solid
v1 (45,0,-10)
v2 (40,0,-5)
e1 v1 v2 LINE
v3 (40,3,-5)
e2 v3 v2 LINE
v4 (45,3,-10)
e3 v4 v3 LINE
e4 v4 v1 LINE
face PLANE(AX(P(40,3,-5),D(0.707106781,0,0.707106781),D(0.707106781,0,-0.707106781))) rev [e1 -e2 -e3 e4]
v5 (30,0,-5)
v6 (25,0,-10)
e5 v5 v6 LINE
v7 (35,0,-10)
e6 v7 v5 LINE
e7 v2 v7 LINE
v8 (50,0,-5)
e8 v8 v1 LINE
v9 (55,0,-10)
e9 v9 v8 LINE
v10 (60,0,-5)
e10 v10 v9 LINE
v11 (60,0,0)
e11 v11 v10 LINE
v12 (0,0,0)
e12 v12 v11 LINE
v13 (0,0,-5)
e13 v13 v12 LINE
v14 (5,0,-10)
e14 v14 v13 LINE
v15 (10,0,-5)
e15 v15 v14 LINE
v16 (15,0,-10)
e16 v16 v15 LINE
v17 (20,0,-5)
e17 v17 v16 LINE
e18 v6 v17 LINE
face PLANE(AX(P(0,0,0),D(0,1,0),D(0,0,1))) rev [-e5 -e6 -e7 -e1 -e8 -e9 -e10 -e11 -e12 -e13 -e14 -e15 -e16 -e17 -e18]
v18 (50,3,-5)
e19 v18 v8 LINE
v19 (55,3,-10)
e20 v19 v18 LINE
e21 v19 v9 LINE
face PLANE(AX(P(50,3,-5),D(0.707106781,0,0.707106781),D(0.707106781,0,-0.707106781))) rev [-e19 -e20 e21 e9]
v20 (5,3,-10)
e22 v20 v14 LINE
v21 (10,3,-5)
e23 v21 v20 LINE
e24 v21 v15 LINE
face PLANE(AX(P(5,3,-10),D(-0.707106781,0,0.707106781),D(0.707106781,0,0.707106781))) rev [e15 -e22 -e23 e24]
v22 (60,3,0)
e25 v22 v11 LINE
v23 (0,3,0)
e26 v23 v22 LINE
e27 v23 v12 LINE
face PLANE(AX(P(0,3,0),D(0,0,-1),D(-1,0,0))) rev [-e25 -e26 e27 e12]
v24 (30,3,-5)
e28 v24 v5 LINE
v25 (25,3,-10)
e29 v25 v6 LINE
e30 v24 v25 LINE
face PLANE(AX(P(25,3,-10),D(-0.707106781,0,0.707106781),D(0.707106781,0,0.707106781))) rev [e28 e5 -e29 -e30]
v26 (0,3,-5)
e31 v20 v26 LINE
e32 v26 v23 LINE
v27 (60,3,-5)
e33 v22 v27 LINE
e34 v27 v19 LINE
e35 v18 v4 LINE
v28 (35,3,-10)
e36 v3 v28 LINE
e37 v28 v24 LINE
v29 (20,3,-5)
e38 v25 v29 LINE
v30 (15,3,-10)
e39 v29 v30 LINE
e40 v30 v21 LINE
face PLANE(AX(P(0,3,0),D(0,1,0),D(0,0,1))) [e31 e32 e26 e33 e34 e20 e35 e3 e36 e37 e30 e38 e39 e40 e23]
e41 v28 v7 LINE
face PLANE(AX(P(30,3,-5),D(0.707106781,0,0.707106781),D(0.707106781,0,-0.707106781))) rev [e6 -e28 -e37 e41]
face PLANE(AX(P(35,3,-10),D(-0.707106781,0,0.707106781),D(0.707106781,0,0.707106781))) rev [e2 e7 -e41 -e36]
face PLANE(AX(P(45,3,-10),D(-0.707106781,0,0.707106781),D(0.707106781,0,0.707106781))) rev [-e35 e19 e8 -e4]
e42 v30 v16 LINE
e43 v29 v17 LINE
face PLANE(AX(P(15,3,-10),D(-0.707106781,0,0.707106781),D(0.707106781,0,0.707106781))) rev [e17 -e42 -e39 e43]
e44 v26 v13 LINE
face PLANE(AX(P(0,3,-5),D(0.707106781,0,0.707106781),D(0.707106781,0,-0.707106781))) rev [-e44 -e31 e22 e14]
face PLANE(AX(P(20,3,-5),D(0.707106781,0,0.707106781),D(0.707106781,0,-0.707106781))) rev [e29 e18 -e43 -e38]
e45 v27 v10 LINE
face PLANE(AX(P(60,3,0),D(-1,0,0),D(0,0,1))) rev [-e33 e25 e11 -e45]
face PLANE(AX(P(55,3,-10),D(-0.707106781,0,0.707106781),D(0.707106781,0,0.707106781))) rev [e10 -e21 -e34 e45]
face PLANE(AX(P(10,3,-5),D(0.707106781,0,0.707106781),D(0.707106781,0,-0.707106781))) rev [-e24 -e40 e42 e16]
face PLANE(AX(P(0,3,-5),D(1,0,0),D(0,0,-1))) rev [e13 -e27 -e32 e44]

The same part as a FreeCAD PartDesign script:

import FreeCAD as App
import Part
import Sketcher
Q = App.Units.Quantity

doc = App.newDocument("Part")
body = doc.addObject("PartDesign::Body", "Body")

sketch1 = body.newObject("Sketcher::SketchObject", "Sketch")
sketch1.AttachmentSupport = (doc.getObject("XZ_Plane"), [""])
sketch1.MapMode = "FlatFace"
sketch1.addGeometry(Part.LineSegment(App.Vector(5, -10, 0), App.Vector(0, -5, 0)), False)
sketch1.addGeometry(Part.LineSegment(App.Vector(0, -5, 0), App.Vector(0, 0, 0)), False)
sketch1.addGeometry(Part.LineSegment(App.Vector(0, 0, 0), App.Vector(60, 0, 0)), False)
sketch1.addGeometry(Part.LineSegment(App.Vector(60, 0, 0), App.Vector(60, -5, 0)), False)
sketch1.addGeometry(Part.LineSegment(App.Vector(60, -5, 0), App.Vector(55, -10, 0)), False)
sketch1.addGeometry(Part.LineSegment(App.Vector(55, -10, 0), App.Vector(50, -5, 0)), False)
sketch1.addGeometry(Part.LineSegment(App.Vector(50, -5, 0), App.Vector(45, -10, 0)), False)
sketch1.addGeometry(Part.LineSegment(App.Vector(45, -10, 0), App.Vector(40, -5, 0)), False)
sketch1.addGeometry(Part.LineSegment(App.Vector(40, -5, 0), App.Vector(35, -10, 0)), False)
sketch1.addGeometry(Part.LineSegment(App.Vector(35, -10, 0), App.Vector(30, -5, 0)), False)
sketch1.addGeometry(Part.LineSegment(App.Vector(30, -5, 0), App.Vector(25, -10, 0)), False)
sketch1.addGeometry(Part.LineSegment(App.Vector(25, -10, 0), App.Vector(20, -5, 0)), False)
sketch1.addGeometry(Part.LineSegment(App.Vector(20, -5, 0), App.Vector(15, -10, 0)), False)
sketch1.addGeometry(Part.LineSegment(App.Vector(15, -10, 0), App.Vector(10, -5, 0)), False)
sketch1.addGeometry(Part.LineSegment(App.Vector(10, -5, 0), App.Vector(5, -10, 0)), False)
sketch1.addConstraint(Sketcher.Constraint("Coincident", 0, 2, 1, 1))
sketch1.addConstraint(Sketcher.Constraint("Coincident", 1, 2, 2, 1))
sketch1.addConstraint(Sketcher.Constraint("Coincident", 2, 2, 3, 1))
sketch1.addConstraint(Sketcher.Constraint("Coincident", 3, 2, 4, 1))
sketch1.addConstraint(Sketcher.Constraint("Coincident", 4, 2, 5, 1))
sketch1.addConstraint(Sketcher.Constraint("Coincident", 5, 2, 6, 1))
sketch1.addConstraint(Sketcher.Constraint("Coincident", 6, 2, 7, 1))
sketch1.addConstraint(Sketcher.Constraint("Coincident", 7, 2, 8, 1))
sketch1.addConstraint(Sketcher.Constraint("Coincident", 8, 2, 9, 1))
sketch1.addConstraint(Sketcher.Constraint("Coincident", 9, 2, 10, 1))
sketch1.addConstraint(Sketcher.Constraint("Coincident", 10, 2, 11, 1))
sketch1.addConstraint(Sketcher.Constraint("Coincident", 11, 2, 12, 1))
sketch1.addConstraint(Sketcher.Constraint("Coincident", 12, 2, 13, 1))
sketch1.addConstraint(Sketcher.Constraint("Coincident", 13, 2, 14, 1))
sketch1.addConstraint(Sketcher.Constraint("Coincident", 14, 2, 0, 1))
sketch1.addConstraint(Sketcher.Constraint("Vertical", 1))
sketch1.addConstraint(Sketcher.Constraint("Horizontal", 2))
sketch1.addConstraint(Sketcher.Constraint("Vertical", 3))
sketch1.addConstraint(Sketcher.Constraint("Coincident", 1, 2, -1, 1))
sketch1.addConstraint(Sketcher.Constraint("Perpendicular", 0, 4))
sketch1.addConstraint(Sketcher.Constraint("Perpendicular", 4, 5))
sketch1.addConstraint(Sketcher.Constraint("Perpendicular", 5, 6))
sketch1.addConstraint(Sketcher.Constraint("Perpendicular", 6, 7))
sketch1.addConstraint(Sketcher.Constraint("Perpendicular", 7, 8))
sketch1.addConstraint(Sketcher.Constraint("Perpendicular", 8, 9))
sketch1.addConstraint(Sketcher.Constraint("Perpendicular", 9, 10))
sketch1.addConstraint(Sketcher.Constraint("Perpendicular", 10, 11))
sketch1.addConstraint(Sketcher.Constraint("Perpendicular", 11, 12))
sketch1.addConstraint(Sketcher.Constraint("Perpendicular", 12, 13))
sketch1.addConstraint(Sketcher.Constraint("Perpendicular", 13, 14))
sketch1.addConstraint(Sketcher.Constraint("Horizontal", 0, 2, 3, 2))
sketch1.addConstraint(Sketcher.Constraint("Horizontal", 3, 2, 5, 2))
sketch1.addConstraint(Sketcher.Constraint("Horizontal", 4, 2, 6, 2))
sketch1.addConstraint(Sketcher.Constraint("Horizontal", 5, 2, 7, 2))
sketch1.addConstraint(Sketcher.Constraint("Horizontal", 6, 2, 8, 2))
sketch1.addConstraint(Sketcher.Constraint("Horizontal", 7, 2, 9, 2))
sketch1.addConstraint(Sketcher.Constraint("Horizontal", 8, 2, 10, 2))
sketch1.addConstraint(Sketcher.Constraint("Horizontal", 9, 2, 11, 2))
sketch1.addConstraint(Sketcher.Constraint("Horizontal", 10, 2, 12, 2))
sketch1.addConstraint(Sketcher.Constraint("Horizontal", 11, 2, 13, 2))
sketch1.addConstraint(Sketcher.Constraint("Horizontal", 12, 2, 14, 2))
sketch1.addConstraint(Sketcher.Constraint("Equal", 0, 4))
sketch1.addConstraint(Sketcher.Constraint("DistanceX", 2, 1, 2, 2, Q("60 mm")))
sketch1.addConstraint(Sketcher.Constraint("DistanceY", 1, 1, 1, 2, Q("5 mm")))
pad1 = body.newObject("PartDesign::Pad", "Pad")
pad1.Profile = sketch1
pad1.Length = 3
pad1.Reversed = True

doc.recompute()
